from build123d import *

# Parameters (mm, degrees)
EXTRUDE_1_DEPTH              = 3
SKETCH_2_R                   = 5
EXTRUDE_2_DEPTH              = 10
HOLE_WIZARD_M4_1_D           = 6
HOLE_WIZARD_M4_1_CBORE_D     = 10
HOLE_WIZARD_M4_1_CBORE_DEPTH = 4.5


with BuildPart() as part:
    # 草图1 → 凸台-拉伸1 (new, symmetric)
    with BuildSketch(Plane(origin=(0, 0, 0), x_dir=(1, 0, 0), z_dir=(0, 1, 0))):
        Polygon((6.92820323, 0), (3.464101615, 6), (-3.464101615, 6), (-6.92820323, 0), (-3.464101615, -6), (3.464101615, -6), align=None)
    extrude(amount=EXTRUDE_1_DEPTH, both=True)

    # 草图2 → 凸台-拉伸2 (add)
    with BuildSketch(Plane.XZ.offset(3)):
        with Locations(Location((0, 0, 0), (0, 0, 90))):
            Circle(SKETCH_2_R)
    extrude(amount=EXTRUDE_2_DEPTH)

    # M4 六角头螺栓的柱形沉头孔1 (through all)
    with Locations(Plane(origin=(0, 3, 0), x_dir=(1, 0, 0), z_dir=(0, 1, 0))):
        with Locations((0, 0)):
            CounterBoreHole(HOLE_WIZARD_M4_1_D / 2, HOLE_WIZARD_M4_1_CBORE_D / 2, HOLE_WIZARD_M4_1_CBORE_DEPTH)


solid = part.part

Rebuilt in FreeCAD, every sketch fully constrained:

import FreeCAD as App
import Part
import Sketcher
Q = App.Units.Quantity


def add_polygon(sketch, points):
    """Adds a closed chain of lines whose ends are joined by coincident constraints."""
    first, n = sketch.GeometryCount, len(points)
    for a, b in zip(points, points[1:] + points[:1]):
        sketch.addGeometry(Part.LineSegment(App.Vector(*a, 0), App.Vector(*b, 0)), False)
    for i in range(n):
        sketch.addConstraint(Sketcher.Constraint("Coincident", first + i, 2, first + (i + 1) % n, 1))

doc = App.newDocument("Part")
body = doc.addObject("PartDesign::Body", "Body")

sketch1 = body.newObject("Sketcher::SketchObject", "Sketch")
sketch1.AttachmentSupport = (doc.getObject("XZ_Plane"), [""])
sketch1.MapMode = "FlatFace"
add_polygon(sketch1, [(6.928203, 0), (3.464102, -6), (-3.464102, -6), (-6.928203, 0), (-3.464102, 6), (3.464102, 6)])
sketch1.addConstraint([
    Sketcher.Constraint("Horizontal", 1),
    Sketcher.Constraint("Horizontal", 4),
    Sketcher.Constraint("Symmetric", 0, 2, 3, 2, -1, 1),
    Sketcher.Constraint("Symmetric", 2, 2, 5, 2, -1, 1),
    Sketcher.Constraint("PointOnObject", 2, 2, -1),
    Sketcher.Constraint("Parallel", 2, 5),
    Sketcher.Constraint("Vertical", 1, 2, 3, 2),
    Sketcher.Constraint("Angle", 0, Q("-120 deg")),
    Sketcher.Constraint("DistanceY", 0, 2, -1, 1, 6.0),
    Sketcher.Constraint("DistanceX", -1, 1, 0, 2, 3.464102),
])
pad1 = body.newObject("PartDesign::Pad", "Pad")
pad1.Profile = sketch1
pad1.Length = 6
pad1.Midplane = True

sketch2 = body.newObject("Sketcher::SketchObject", "Sketch001")
sketch2.AttachmentSupport = (doc.getObject("XZ_Plane"), [""])
sketch2.MapMode = "FlatFace"
sketch2.AttachmentOffset = App.Placement(App.Vector(0, 0, 3), App.Rotation())
sketch2.addGeometry(Part.Circle(App.Vector(0, 0, 0), App.Vector(0, 0, 1), 5), False)
sketch2.addConstraint([
    Sketcher.Constraint("Coincident", 0, 3, -1, 1),
    Sketcher.Constraint("Diameter", 0, 10.0),
])
pad2 = body.newObject("PartDesign::Pad", "Pad001")
pad2.Profile = sketch2
pad2.Length = 10

sketch3 = body.newObject("Sketcher::SketchObject", "Sketch002")
sketch3.AttachmentSupport = (doc.getObject("XZ_Plane"), [""])
sketch3.MapMode = "FlatFace"
sketch3.AttachmentOffset = App.Placement(App.Vector(0, 0, -3), App.Rotation())
sketch3.addGeometry(Part.Circle(App.Vector(0, 0, 0), App.Vector(0, 0, 1), 3), False)
sketch3.addConstraint([
    Sketcher.Constraint("Coincident", 0, 3, -1, 1),
    Sketcher.Constraint("Diameter", 0, 6.0),
])
doc.recompute()
hole = body.newObject("PartDesign::Hole", "Hole")
hole.Profile = sketch3
hole.ThreadType = "None"
hole.Diameter = 6
hole.DepthType = "ThroughAll"
hole.HoleCutType = "Counterbore"
hole.HoleCutDiameter = 10
hole.HoleCutDepth = 4.5
hole.Reversed = True

doc.recompute()
